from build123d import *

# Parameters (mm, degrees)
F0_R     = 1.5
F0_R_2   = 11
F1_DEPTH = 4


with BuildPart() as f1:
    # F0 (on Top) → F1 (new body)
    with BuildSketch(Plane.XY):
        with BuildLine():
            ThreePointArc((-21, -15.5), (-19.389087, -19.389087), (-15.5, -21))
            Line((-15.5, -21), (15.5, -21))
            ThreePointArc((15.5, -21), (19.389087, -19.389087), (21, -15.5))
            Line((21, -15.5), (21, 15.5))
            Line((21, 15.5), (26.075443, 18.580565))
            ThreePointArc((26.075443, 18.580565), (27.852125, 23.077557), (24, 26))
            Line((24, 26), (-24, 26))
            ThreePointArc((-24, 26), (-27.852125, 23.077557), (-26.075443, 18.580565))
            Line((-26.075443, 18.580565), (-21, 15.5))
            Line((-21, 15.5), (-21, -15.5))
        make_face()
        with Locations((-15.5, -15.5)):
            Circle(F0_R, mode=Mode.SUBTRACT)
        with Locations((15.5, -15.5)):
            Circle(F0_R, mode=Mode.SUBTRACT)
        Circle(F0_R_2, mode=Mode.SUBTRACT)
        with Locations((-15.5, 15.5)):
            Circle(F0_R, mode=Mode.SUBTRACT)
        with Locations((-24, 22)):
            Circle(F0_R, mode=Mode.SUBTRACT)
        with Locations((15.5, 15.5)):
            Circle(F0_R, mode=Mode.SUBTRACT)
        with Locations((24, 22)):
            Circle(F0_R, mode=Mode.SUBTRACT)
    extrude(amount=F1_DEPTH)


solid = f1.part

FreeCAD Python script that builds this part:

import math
import FreeCAD as App
import Part
import Sketcher

V = App.Vector

doc = App.newDocument("Part")
body = doc.addObject("PartDesign::Body", "Body")

sketch1 = body.newObject("Sketcher::SketchObject", "Sketch")
sketch1.AttachmentSupport = (doc.getObject("XY_Plane"), [""])
sketch1.MapMode = "FlatFace"
sketch1.addGeometry([
    Part.ArcOfCircle(Part.Circle(V(-15.499999, -15.499999, 0), V(0, 0, 1), 5.500001), math.radians(-179.999989), math.radians(-90.000011)),
    Part.LineSegment(V(-15.5, -21, 0), V(15.5, -21, 0)),
    Part.ArcOfCircle(Part.Circle(V(15.499999, -15.499999, 0), V(0, 0, 1), 5.500001), math.radians(-89.999989), math.radians(-0.000011)),
    Part.LineSegment(V(21, -15.5, 0), V(21, 15.5, 0)),
    Part.LineSegment(V(21, 15.5, 0), V(26.075443, 18.580565, 0)),
    Part.ArcOfCircle(Part.Circle(V(23.999999, 22, 0), V(0, 0, 1), 4), math.radians(-58.744127), math.radians(89.999991)),
    Part.LineSegment(V(24, 26, 0), V(-24, 26, 0)),
    Part.ArcOfCircle(Part.Circle(V(-23.999999, 22, 0), V(0, 0, 1), 4), math.radians(90.000009), math.radians(238.744127)),
    Part.LineSegment(V(-26.075443, 18.580565, 0), V(-21, 15.5, 0)),
    Part.LineSegment(V(-21, 15.5, 0), V(-21, -15.5, 0)),
    Part.Circle(V(-15.5, -15.5, 0), V(0, 0, 1), 1.5),
    Part.Circle(V(15.5, -15.5, 0), V(0, 0, 1), 1.5),
    Part.Circle(V(0, 0, 0), V(0, 0, 1), 11),
    Part.Circle(V(-15.5, 15.5, 0), V(0, 0, 1), 1.5),
    Part.Circle(V(-24, 22, 0), V(0, 0, 1), 1.5),
    Part.Circle(V(15.5, 15.5, 0), V(0, 0, 1), 1.5),
    Part.Circle(V(24, 22, 0), V(0, 0, 1), 1.5),
], False)
sketch1.addConstraint([
    Sketcher.Constraint("Tangent", 0, 2, 1, 1),
    Sketcher.Constraint("Tangent", 1, 2, 2, 1),
    Sketcher.Constraint("Tangent", 2, 2, 3, 1),
    Sketcher.Constraint("Coincident", 3, 2, 4, 1),
    Sketcher.Constraint("Tangent", 4, 2, 5, 1),
    Sketcher.Constraint("Tangent", 5, 2, 6, 1),
    Sketcher.Constraint("Tangent", 6, 2, 7, 1),
    Sketcher.Constraint("Tangent", 7, 2, 8, 1),
    Sketcher.Constraint("Coincident", 8, 2, 9, 1),
    Sketcher.Constraint("Tangent", 9, 2, 0, 1),
    Sketcher.Constraint("Horizontal", 1),
    Sketcher.Constraint("Vertical", 3),
    Sketcher.Constraint("Horizontal", 6),
    Sketcher.Constraint("Vertical", 9),
    Sketcher.Constraint("Coincident", 12, 3, -1, 1),
    Sketcher.Constraint("Coincident", 10, 3, 0, 3),
    Sketcher.Constraint("Coincident", 11, 3, 2, 3),
    Sketcher.Constraint("Coincident", 14, 3, 7, 3),
    Sketcher.Constraint("Coincident", 16, 3, 5, 3),
    Sketcher.Constraint("Equal", 0, 2),
    Sketcher.Constraint("Equal", 5, 7),
    Sketcher.Constraint("Equal", 10, 11),
    Sketcher.Constraint("Equal", 11, 13),
    Sketcher.Constraint("Equal", 13, 14),
    Sketcher.Constraint("Equal", 14, 15),
    Sketcher.Constraint("Equal", 15, 16),
    Sketcher.Constraint("Symmetric", 2, 3, 13, 3, -1, 1),
    Sketcher.Constraint("Symmetric", 0, 3, 15, 3, -1, 1),
    Sketcher.Constraint("Symmetric", 2, 2, 8, 2, -1, 1),
    Sketcher.Constraint("Symmetric", 4, 2, 7, 2, -2),
    Sketcher.Constraint("Equal", 1, 3),
    Sketcher.Constraint("Diameter", 10, 3.0),
    Sketcher.Constraint("Diameter", 12, 22.0),
    Sketcher.Constraint("Radius", 5, 4.0),
    Sketcher.Constraint("Radius", 0, 5.500001),
    Sketcher.Constraint("DistanceX", 1, 1, 1, 2, 31.0),
    Sketcher.Constraint("DistanceX", 6, 2, 6, 1, 48.0),
    Sketcher.Constraint("DistanceY", -1, 1, 5, 3, 22.0),
])
pad1 = body.newObject("PartDesign::Pad", "Pad")
pad1.Profile = sketch1
pad1.Length = 4

doc.recompute()
